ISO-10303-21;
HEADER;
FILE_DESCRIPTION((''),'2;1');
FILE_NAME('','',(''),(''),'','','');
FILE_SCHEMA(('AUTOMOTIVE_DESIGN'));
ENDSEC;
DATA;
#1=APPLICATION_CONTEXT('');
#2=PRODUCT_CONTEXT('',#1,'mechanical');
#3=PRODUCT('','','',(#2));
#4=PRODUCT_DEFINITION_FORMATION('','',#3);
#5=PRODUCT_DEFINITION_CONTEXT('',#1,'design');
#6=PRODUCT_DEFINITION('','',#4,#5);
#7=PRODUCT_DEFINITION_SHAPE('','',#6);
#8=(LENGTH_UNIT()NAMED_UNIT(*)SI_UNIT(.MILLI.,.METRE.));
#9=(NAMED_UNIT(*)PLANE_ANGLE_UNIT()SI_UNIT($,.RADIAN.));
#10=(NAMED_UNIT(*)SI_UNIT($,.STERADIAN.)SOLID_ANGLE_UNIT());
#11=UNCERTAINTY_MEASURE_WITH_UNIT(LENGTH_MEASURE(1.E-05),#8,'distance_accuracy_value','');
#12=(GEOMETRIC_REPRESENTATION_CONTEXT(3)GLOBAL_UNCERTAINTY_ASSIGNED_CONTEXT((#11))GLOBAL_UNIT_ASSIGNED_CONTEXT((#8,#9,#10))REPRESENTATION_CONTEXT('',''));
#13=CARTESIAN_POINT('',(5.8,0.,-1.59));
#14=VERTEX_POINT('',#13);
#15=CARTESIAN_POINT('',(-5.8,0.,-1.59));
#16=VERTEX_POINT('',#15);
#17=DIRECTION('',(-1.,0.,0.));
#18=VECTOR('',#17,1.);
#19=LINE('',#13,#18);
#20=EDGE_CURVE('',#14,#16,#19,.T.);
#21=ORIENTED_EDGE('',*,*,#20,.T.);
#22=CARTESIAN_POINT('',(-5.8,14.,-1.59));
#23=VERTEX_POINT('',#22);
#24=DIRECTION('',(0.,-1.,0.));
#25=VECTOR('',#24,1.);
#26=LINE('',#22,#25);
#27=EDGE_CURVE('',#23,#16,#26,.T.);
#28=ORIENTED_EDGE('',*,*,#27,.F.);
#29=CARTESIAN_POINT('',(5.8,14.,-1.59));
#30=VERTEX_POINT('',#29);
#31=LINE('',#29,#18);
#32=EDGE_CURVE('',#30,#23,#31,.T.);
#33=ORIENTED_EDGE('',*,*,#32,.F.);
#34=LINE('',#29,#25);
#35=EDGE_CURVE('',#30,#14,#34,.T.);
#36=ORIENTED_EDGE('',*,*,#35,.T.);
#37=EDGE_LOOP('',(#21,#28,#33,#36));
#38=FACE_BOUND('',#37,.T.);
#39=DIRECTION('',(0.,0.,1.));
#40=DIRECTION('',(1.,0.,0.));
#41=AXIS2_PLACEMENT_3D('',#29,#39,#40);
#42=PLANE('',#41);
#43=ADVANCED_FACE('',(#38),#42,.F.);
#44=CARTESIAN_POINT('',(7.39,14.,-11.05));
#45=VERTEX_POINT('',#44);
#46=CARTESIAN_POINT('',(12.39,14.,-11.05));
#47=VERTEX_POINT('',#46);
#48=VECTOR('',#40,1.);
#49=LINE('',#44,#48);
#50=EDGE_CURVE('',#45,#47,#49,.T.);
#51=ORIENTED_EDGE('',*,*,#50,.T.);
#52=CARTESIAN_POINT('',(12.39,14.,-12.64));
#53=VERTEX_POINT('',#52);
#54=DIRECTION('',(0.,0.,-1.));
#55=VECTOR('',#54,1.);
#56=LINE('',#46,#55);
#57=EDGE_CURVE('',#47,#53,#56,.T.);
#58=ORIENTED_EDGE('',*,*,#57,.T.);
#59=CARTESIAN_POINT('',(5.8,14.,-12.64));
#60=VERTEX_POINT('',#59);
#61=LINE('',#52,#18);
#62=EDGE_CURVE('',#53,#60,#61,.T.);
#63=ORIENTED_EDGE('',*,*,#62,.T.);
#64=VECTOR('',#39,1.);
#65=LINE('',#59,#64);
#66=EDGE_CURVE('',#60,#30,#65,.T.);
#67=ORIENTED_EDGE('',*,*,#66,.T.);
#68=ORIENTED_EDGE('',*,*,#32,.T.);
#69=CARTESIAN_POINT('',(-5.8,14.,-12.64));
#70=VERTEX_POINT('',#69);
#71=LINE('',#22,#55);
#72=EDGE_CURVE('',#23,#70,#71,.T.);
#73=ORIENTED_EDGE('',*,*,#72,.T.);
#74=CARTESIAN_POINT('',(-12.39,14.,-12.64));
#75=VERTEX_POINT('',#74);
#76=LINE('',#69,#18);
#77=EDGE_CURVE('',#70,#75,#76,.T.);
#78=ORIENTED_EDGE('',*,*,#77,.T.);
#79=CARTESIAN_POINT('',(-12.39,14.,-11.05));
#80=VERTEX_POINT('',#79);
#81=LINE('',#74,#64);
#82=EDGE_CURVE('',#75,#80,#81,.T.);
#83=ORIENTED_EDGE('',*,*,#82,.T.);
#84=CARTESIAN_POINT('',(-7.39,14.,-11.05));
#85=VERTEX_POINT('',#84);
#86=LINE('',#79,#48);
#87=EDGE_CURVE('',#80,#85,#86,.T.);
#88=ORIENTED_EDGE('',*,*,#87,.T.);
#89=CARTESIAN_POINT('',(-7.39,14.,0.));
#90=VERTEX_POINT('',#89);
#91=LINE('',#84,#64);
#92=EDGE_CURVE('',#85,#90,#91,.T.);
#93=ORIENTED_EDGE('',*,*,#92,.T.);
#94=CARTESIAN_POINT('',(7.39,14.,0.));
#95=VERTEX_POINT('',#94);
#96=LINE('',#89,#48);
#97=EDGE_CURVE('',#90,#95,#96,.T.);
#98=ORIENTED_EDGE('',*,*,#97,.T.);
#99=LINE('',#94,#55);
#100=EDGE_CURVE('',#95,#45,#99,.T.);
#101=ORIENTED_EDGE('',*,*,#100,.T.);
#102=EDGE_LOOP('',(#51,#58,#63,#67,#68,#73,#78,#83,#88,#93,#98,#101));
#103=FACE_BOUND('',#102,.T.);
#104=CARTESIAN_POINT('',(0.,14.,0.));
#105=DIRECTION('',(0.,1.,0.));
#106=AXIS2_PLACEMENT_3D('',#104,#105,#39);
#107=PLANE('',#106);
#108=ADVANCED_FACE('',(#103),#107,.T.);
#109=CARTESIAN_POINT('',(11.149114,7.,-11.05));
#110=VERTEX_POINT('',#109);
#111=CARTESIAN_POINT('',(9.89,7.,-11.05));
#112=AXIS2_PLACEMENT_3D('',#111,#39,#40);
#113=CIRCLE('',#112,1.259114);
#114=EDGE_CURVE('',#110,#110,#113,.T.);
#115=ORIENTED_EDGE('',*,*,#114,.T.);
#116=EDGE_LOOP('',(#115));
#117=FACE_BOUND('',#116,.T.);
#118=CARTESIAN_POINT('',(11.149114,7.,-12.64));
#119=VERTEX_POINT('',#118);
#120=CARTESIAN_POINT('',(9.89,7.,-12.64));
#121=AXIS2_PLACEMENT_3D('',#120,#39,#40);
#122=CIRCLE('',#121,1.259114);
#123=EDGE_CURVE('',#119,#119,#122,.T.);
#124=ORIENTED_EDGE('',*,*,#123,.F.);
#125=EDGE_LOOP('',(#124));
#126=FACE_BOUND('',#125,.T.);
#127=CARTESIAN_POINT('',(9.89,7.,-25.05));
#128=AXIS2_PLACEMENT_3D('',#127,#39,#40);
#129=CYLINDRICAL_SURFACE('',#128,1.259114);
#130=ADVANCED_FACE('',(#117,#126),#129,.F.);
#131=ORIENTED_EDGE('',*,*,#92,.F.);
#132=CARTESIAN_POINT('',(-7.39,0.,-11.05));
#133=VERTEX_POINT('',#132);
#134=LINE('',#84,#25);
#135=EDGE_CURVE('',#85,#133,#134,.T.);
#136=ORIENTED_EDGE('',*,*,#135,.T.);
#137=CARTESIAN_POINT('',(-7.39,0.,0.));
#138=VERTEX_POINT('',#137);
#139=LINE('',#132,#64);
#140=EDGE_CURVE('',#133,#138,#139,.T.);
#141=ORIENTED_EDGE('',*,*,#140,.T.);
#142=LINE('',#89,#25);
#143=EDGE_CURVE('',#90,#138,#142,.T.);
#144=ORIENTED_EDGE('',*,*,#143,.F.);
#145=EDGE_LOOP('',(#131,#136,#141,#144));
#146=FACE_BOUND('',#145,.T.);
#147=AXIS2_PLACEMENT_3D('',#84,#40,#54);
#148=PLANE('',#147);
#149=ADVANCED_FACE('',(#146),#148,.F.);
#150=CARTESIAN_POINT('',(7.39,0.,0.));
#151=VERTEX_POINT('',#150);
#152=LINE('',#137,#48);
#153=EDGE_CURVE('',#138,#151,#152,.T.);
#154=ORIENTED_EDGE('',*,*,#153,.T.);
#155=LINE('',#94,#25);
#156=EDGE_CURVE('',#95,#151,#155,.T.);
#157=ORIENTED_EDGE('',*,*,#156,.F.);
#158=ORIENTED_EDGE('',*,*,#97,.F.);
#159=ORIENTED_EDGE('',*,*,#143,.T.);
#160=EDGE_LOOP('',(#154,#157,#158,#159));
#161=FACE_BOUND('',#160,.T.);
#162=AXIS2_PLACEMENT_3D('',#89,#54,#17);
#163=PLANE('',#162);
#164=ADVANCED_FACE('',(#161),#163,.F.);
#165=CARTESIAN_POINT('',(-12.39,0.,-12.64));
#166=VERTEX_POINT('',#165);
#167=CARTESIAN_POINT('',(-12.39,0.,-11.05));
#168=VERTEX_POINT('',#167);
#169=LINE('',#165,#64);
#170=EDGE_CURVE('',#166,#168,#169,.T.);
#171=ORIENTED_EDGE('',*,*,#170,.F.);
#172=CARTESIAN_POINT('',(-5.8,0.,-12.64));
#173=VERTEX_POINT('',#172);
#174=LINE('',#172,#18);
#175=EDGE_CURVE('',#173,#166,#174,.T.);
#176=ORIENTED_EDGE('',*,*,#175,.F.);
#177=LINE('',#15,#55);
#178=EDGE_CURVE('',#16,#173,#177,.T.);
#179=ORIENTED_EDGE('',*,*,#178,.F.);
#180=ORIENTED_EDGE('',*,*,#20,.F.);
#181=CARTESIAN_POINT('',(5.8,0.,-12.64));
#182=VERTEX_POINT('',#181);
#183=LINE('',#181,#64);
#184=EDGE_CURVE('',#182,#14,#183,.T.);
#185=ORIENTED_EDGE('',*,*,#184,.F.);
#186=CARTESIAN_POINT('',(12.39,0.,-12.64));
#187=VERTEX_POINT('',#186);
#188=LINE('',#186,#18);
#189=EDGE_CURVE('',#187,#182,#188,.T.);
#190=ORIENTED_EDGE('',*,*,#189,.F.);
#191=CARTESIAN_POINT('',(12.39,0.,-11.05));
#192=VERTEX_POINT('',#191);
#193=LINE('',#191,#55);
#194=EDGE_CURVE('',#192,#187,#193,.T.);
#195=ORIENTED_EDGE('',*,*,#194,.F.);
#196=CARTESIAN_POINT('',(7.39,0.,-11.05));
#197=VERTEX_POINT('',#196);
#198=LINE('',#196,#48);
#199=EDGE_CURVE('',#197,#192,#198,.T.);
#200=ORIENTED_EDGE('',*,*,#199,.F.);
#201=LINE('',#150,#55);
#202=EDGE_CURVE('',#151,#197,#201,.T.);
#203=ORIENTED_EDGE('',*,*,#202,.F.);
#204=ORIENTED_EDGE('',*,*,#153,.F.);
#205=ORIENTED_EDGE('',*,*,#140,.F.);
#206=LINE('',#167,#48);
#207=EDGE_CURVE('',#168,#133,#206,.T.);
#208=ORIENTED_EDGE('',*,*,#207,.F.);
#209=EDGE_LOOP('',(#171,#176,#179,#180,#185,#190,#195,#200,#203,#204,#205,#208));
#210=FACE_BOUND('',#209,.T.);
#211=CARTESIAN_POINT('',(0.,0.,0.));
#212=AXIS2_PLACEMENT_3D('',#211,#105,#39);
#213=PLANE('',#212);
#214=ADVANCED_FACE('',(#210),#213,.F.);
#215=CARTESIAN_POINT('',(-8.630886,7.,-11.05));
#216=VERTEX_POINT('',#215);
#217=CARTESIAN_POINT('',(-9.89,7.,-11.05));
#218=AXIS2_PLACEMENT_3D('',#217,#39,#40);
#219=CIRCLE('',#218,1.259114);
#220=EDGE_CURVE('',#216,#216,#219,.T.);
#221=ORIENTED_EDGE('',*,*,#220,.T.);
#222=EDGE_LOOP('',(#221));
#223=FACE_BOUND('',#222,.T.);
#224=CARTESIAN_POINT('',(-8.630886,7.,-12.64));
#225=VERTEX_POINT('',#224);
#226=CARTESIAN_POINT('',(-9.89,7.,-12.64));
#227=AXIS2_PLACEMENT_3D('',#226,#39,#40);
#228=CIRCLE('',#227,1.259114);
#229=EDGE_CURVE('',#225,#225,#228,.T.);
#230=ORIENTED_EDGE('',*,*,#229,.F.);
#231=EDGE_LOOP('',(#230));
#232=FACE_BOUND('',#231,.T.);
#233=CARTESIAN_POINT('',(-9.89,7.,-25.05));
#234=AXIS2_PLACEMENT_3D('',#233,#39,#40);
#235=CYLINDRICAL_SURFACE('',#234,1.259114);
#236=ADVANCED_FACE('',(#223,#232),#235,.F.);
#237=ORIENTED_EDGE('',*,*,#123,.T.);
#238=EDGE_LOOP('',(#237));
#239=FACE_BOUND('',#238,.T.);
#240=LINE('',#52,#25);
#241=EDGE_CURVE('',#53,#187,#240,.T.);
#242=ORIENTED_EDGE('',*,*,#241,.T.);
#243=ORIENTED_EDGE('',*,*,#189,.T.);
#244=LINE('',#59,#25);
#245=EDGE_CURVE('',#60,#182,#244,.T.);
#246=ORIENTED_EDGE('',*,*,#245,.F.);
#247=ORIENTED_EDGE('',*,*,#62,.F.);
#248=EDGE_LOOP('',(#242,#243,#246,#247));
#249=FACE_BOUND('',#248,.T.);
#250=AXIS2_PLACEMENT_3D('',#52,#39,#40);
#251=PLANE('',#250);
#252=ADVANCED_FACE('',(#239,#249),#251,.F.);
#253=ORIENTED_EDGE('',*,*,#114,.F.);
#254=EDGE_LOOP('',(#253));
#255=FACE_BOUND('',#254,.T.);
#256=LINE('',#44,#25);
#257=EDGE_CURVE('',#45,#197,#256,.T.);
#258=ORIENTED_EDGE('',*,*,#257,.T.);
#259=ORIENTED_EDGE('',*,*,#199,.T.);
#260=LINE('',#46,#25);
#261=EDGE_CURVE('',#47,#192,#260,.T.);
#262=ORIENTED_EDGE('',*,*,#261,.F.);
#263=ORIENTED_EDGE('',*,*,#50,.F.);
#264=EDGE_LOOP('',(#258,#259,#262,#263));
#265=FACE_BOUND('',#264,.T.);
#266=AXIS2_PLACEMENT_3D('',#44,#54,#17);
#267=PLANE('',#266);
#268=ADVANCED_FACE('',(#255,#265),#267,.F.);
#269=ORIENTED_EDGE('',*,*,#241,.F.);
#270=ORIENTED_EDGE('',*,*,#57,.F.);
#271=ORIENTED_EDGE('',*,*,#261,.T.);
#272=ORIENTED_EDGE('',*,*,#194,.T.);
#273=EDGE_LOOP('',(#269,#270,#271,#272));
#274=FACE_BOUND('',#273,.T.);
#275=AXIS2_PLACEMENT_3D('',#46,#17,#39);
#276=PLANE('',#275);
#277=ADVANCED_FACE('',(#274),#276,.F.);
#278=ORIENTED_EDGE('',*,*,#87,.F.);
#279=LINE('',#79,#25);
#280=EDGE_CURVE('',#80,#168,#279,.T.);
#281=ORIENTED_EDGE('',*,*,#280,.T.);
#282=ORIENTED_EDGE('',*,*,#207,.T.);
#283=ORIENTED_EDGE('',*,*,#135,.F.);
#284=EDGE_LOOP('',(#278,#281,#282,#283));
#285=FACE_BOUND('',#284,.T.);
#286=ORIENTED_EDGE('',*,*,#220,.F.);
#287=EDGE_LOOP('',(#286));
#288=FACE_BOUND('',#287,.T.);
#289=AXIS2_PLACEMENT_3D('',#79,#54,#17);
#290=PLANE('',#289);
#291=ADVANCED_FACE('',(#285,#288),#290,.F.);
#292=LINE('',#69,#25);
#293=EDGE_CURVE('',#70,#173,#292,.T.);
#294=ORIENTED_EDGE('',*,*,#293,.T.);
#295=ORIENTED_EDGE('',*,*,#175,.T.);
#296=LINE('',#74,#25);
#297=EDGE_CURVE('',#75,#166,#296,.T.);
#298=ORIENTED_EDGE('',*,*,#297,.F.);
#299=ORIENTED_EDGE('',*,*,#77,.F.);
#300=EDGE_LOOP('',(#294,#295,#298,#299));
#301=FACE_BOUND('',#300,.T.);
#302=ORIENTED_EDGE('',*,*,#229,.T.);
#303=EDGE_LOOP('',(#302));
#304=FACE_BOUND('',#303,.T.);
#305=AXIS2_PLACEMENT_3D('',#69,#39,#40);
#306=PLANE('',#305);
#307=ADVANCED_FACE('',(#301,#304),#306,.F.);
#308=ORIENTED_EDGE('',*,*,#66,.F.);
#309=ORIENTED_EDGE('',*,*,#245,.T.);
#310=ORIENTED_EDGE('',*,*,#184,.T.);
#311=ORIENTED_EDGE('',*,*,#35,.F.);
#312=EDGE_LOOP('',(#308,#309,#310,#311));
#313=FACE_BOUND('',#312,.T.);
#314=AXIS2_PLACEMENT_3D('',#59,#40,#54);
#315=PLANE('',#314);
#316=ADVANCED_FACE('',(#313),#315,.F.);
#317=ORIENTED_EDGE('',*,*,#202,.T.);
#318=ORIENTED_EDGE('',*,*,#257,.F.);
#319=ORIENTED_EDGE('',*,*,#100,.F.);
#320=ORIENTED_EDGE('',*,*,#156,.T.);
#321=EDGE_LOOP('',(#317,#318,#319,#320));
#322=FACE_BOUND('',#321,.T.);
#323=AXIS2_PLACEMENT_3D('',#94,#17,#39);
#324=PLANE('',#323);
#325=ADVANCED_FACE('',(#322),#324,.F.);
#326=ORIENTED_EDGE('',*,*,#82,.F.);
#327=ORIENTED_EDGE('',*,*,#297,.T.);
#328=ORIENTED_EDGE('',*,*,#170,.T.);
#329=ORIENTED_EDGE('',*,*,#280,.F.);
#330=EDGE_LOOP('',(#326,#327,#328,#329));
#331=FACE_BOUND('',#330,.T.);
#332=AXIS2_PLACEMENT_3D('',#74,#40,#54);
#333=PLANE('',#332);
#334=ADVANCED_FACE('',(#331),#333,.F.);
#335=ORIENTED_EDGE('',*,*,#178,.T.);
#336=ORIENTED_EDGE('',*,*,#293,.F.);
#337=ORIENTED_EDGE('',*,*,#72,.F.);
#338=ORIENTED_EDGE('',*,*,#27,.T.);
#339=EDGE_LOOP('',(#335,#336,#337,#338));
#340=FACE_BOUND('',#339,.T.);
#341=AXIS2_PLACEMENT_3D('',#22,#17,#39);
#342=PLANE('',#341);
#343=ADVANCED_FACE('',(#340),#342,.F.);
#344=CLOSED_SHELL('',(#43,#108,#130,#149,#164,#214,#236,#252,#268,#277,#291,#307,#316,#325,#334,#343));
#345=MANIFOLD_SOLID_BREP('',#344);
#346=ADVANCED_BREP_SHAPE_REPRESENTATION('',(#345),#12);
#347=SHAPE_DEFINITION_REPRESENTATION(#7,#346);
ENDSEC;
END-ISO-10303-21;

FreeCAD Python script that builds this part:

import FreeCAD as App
import Part
import Sketcher
Q = App.Units.Quantity

doc = App.newDocument("Part")
params = doc.addObject("Spreadsheet::Sheet", "Params")
for row, (alias, value) in enumerate([
    ("sketch1_width", "5 mm"),
    ("sketch1_width2", "11.6 mm"),
    ("sketch1_width3", "14.78 mm"),
    ("sketch1_height", "11.05 mm"),
    ("sketch1_height2", "1.59 mm"),
    ("pad1_length", "14 mm"),
    ("pocket1_length", "14 mm"),
], start=1):
    params.set(f"A{row}", alias)
    params.set(f"B{row}", "=" + value)
    params.setAlias(f"B{row}", alias)

body = doc.addObject("PartDesign::Body", "Body")

sketch1 = body.newObject("Sketcher::SketchObject", "Sketch")
sketch1.AttachmentSupport = (doc.getObject("XZ_Plane"), [""])
sketch1.MapMode = "FlatFace"
sketch1.addGeometry([
    Part.LineSegment(App.Vector(-7.4, 0, 0), App.Vector(7.4, 0, 0)),
    Part.LineSegment(App.Vector(7.4, 0, 0), App.Vector(7.4, -11.1, 0)),
    Part.LineSegment(App.Vector(7.4, -11.1, 0), App.Vector(12.4, -11.1, 0)),
    Part.LineSegment(App.Vector(12.4, -11.1, 0), App.Vector(12.4, -12.6, 0)),
    Part.LineSegment(App.Vector(12.4, -12.6, 0), App.Vector(5.8, -12.6, 0)),
    Part.LineSegment(App.Vector(5.8, -12.6, 0), App.Vector(5.8, -1.6, 0)),
    Part.LineSegment(App.Vector(5.8, -1.6, 0), App.Vector(-5.8, -1.6, 0)),
    Part.LineSegment(App.Vector(-5.8, -1.6, 0), App.Vector(-5.8, -12.6, 0)),
    Part.LineSegment(App.Vector(-5.8, -12.6, 0), App.Vector(-12.4, -12.6, 0)),
    Part.LineSegment(App.Vector(-12.4, -12.6, 0), App.Vector(-12.4, -11.1, 0)),
    Part.LineSegment(App.Vector(-12.4, -11.1, 0), App.Vector(-7.4, -11.1, 0)),
    Part.LineSegment(App.Vector(-7.4, -11.1, 0), App.Vector(-7.4, 0, 0)),
], False)
sketch1.addConstraint([
    Sketcher.Constraint("Coincident", 0, 2, 1, 1),
    Sketcher.Constraint("Coincident", 1, 2, 2, 1),
    Sketcher.Constraint("Coincident", 2, 2, 3, 1),
    Sketcher.Constraint("Coincident", 3, 2, 4, 1),
    Sketcher.Constraint("Coincident", 4, 2, 5, 1),
    Sketcher.Constraint("Coincident", 5, 2, 6, 1),
    Sketcher.Constraint("Coincident", 6, 2, 7, 1),
    Sketcher.Constraint("Coincident", 7, 2, 8, 1),
    Sketcher.Constraint("Coincident", 8, 2, 9, 1),
    Sketcher.Constraint("Coincident", 9, 2, 10, 1),
    Sketcher.Constraint("Coincident", 10, 2, 11, 1),
    Sketcher.Constraint("Coincident", 11, 2, 0, 1),
    Sketcher.Constraint("Horizontal", 0),
    Sketcher.Constraint("Vertical", 1),
    Sketcher.Constraint("Horizontal", 2),
    Sketcher.Constraint("Vertical", 3),
    Sketcher.Constraint("Horizontal", 4),
    Sketcher.Constraint("Vertical", 5),
    Sketcher.Constraint("Horizontal", 6),
    Sketcher.Constraint("Vertical", 7),
    Sketcher.Constraint("Horizontal", 8),
    Sketcher.Constraint("Vertical", 9),
    Sketcher.Constraint("Horizontal", 10),
    Sketcher.Constraint("Vertical", 11),
    Sketcher.Constraint("Symmetric", 0, 2, 11, 2, -1, 1),
    Sketcher.Constraint("Symmetric", 4, 2, 7, 2, -2),
    Sketcher.Constraint("Symmetric", 2, 2, 9, 2, -2),
    Sketcher.Constraint("Equal", 1, 5),
    Sketcher.Constraint("DistanceX", 2, 1, 2, 2, Q("5 mm")),
    Sketcher.Constraint("DistanceX", 6, 2, 6, 1, Q("11.6 mm")),
    Sketcher.Constraint("DistanceX", 0, 1, 0, 2, Q("14.78 mm")),
    Sketcher.Constraint("DistanceY", 1, 2, 1, 1, Q("11.05 mm")),
    Sketcher.Constraint("DistanceY", 3, 2, 3, 1, Q("1.59 mm")),
])
sketch1.setExpression("Constraints[28]", "Params.sketch1_width")
sketch1.setExpression("Constraints[29]", "Params.sketch1_width2")
sketch1.setExpression("Constraints[30]", "Params.sketch1_width3")
sketch1.setExpression("Constraints[31]", "Params.sketch1_height")
sketch1.setExpression("Constraints[32]", "Params.sketch1_height2")
pad1 = body.newObject("PartDesign::Pad", "Pad")
pad1.Profile = sketch1
pad1.setExpression("Length", "Params.pad1_length")
pad1.Reversed = True

sketch2 = body.newObject("Sketcher::SketchObject", "Sketch001")
sketch2.AttachmentSupport = (doc.getObject("XY_Plane"), [""])
sketch2.MapMode = "FlatFace"
sketch2.AttachmentOffset = App.Placement(App.Vector(0, 0, -11.05), App.Rotation())
sketch2.addGeometry([
    Part.Circle(App.Vector(-9.9, 7, 0), App.Vector(0, 0, 1), 1.3),
    Part.Circle(App.Vector(9.9, 7, 0), App.Vector(0, 0, 1), 1.3),
], False)
sketch2.addConstraint([
    Sketcher.Constraint("Equal", 0, 1),
    Sketcher.Constraint("Symmetric", 0, 3, 1, 3, -2),
    Sketcher.Constraint("DistanceY", -1, 1, 0, 3, Q("7 mm")),
    Sketcher.Constraint("Diameter", 0, Q("2.518228 mm")),
    Sketcher.Constraint("DistanceX", 0, 3, -1, 1, Q("9.89 mm")),
])
pocket1 = body.newObject("PartDesign::Pocket", "Pocket")
pocket1.Profile = sketch2
pocket1.setExpression("Length", "Params.pocket1_length")

doc.recompute()
